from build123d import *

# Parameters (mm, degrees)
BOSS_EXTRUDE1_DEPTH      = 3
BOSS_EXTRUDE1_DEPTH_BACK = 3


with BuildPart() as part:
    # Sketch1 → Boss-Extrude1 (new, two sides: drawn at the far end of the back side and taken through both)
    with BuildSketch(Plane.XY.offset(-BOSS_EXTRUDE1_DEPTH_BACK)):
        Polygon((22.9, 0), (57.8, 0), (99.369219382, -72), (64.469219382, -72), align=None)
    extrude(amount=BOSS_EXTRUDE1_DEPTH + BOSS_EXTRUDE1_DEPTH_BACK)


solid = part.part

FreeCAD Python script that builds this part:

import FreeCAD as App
import Part
import Sketcher
from FreeCAD import Vector
Q = App.Units.Quantity


def add_polygon(sketch, points):
    """Adds a closed chain of lines whose ends are joined by coincident constraints."""
    first, n = sketch.GeometryCount, len(points)
    for a, b in zip(points, points[1:] + points[:1]):
        sketch.addGeometry(Part.LineSegment(App.Vector(*a, 0), App.Vector(*b, 0)), False)
    for i in range(n):
        sketch.addConstraint(Sketcher.Constraint("Coincident", first + i, 2, first + (i + 1) % n, 1))

doc = App.newDocument("Part")
body = doc.addObject("PartDesign::Body", "Body")

# Sketch on XY plane
sketch1 = body.newObject("Sketcher::SketchObject", "Sketch")
sketch1.AttachmentSupport = (doc.getObject("XY_Plane"), [""])
sketch1.MapMode = "FlatFace"
add_polygon(sketch1, [(57.8, 0), (22.9, 0), (64.469219, -72), (99.369219, -72)])  # lines 0-3
sketch1.addConstraint(Sketcher.Constraint("Horizontal", 0))
sketch1.addConstraint(Sketcher.Constraint("Horizontal", 2))
sketch1.addConstraint(Sketcher.Constraint("PointOnObject", 0, 2, -1))
sketch1.addConstraint(Sketcher.Constraint("Parallel", 1, 3))
sketch1.addConstraint(Sketcher.Constraint("Angle", 1, Q("-60 deg")))
sketch1.addConstraint(Sketcher.Constraint("DistanceX", 0, 2, 0, 1, 34.9))
sketch1.addConstraint(Sketcher.Constraint("DistanceY", 1, 2, -1, 1, 72.0))
sketch1.addConstraint(Sketcher.Constraint("DistanceX", -1, 1, 0, 2, 22.9))
pad1 = body.newObject("PartDesign::Pad", "Pad")
pad1.Profile = sketch1
pad1.Type = "TwoLengths"
pad1.Length = 3
pad1.Length2 = 3

doc.recompute()
